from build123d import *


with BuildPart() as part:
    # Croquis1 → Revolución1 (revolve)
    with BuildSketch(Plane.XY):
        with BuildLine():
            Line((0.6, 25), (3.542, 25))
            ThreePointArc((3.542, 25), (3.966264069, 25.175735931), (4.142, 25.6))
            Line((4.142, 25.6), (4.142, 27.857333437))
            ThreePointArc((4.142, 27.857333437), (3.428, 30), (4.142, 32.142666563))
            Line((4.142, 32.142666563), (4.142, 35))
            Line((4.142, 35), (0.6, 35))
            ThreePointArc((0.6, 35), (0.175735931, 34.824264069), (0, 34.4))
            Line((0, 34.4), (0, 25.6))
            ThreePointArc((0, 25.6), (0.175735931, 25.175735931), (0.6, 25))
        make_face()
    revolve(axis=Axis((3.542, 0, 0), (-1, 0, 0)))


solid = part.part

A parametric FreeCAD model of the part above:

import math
import FreeCAD as App
import Part
import Sketcher
from FreeCAD import Vector
Q = App.Units.Quantity

doc = App.newDocument("Part")
body = doc.addObject("PartDesign::Body", "Body")

sketch1 = doc.addObject("Sketcher::SketchObject", "Sketch")
body.addObject(sketch1)
sketch1.AttachmentSupport = (doc.XY_Plane, [""])
sketch1.MapMode = "FlatFace"
sketch1.addGeometry(Part.LineSegment(Vector(0.6, 25, 0), Vector(3.5, 25, 0)), False)
sketch1.addGeometry(Part.ArcOfCircle(Part.Circle(Vector(3.5, 25.6, 0), Vector(0, 0, 1), 0.6), math.radians(-90), math.radians(0)), False)
sketch1.addGeometry(Part.LineSegment(Vector(4.1, 25.6, 0), Vector(4.1, 27.9, 0)), False)
sketch1.addGeometry(Part.ArcOfCircle(Part.Circle(Vector(7, 30, 0), Vector(0, 0, 1), 3.6), math.radians(143), math.radians(217)), False)
sketch1.addGeometry(Part.LineSegment(Vector(4.1, 32.1, 0), Vector(4.1, 35, 0)), False)
sketch1.addGeometry(Part.LineSegment(Vector(4.1, 35, 0), Vector(0.6, 35, 0)), False)
sketch1.addGeometry(Part.ArcOfCircle(Part.Circle(Vector(0.6, 34.4, 0), Vector(0, 0, 1), 0.6), math.radians(90), math.radians(180)), False)
sketch1.addGeometry(Part.LineSegment(Vector(0, 34.4, 0), Vector(0, 25.6, 0)), False)
sketch1.addGeometry(Part.ArcOfCircle(Part.Circle(Vector(0.6, 25.6, 0), Vector(0, 0, 1), 0.6), math.radians(180), math.radians(270)), False)
sketch1.addConstraint(Sketcher.Constraint("Tangent", 0, 2, 1, 1))
sketch1.addConstraint(Sketcher.Constraint("Tangent", 1, 2, 2, 1))
sketch1.addConstraint(Sketcher.Constraint("Coincident", 2, 2, 3, 2))
sketch1.addConstraint(Sketcher.Constraint("Coincident", 3, 1, 4, 1))
sketch1.addConstraint(Sketcher.Constraint("Coincident", 4, 2, 5, 1))
sketch1.addConstraint(Sketcher.Constraint("Tangent", 5, 2, 6, 1))
sketch1.addConstraint(Sketcher.Constraint("Tangent", 6, 2, 7, 1))
sketch1.addConstraint(Sketcher.Constraint("Tangent", 7, 2, 8, 1))
sketch1.addConstraint(Sketcher.Constraint("Tangent", 8, 2, 0, 1))
sketch1.addConstraint(Sketcher.Constraint("Horizontal", 0))
sketch1.addConstraint(Sketcher.Constraint("Vertical", 2))
sketch1.addConstraint(Sketcher.Constraint("Vertical", 4))
sketch1.addConstraint(Sketcher.Constraint("Horizontal", 5))
sketch1.addConstraint(Sketcher.Constraint("Vertical", 7))
sketch1.addConstraint(Sketcher.Constraint("Equal", 1, 6))
sketch1.addConstraint(Sketcher.Constraint("Equal", 6, 8))
sketch1.addConstraint(Sketcher.Constraint("PointOnObject", 6, 2, -2))
sketch1.addConstraint(Sketcher.Constraint("Vertical", 2, 2, 3, 1))
sketch1.addConstraint(Sketcher.Constraint("Radius", 1, Q("0.6 mm")))
sketch1.addConstraint(Sketcher.Constraint("DistanceY", 7, 2, 7, 1, Q("8.8 mm")))
sketch1.addConstraint(Sketcher.Constraint("DistanceX", -1, 1, 3, 3, Q("7 mm")))
sketch1.addConstraint(Sketcher.Constraint("DistanceY", -1, 1, 3, 3, Q("30 mm")))
sketch1.addConstraint(Sketcher.Constraint("DistanceY", -1, 1, 0, 2, Q("25 mm")))
sketch1.addConstraint(Sketcher.Constraint("Radius", 3, Q("3.572 mm")))
sketch1.addConstraint(Sketcher.Constraint("DistanceX", 0, 1, 0, 2, Q("2.942 mm")))
revolution = doc.addObject("PartDesign::Revolution", "Revolution")
body.addObject(revolution)
revolution.Profile = sketch1
revolution.ReferenceAxis = (sketch1, ["H_Axis"])
revolution.Angle = 360

doc.recompute()
